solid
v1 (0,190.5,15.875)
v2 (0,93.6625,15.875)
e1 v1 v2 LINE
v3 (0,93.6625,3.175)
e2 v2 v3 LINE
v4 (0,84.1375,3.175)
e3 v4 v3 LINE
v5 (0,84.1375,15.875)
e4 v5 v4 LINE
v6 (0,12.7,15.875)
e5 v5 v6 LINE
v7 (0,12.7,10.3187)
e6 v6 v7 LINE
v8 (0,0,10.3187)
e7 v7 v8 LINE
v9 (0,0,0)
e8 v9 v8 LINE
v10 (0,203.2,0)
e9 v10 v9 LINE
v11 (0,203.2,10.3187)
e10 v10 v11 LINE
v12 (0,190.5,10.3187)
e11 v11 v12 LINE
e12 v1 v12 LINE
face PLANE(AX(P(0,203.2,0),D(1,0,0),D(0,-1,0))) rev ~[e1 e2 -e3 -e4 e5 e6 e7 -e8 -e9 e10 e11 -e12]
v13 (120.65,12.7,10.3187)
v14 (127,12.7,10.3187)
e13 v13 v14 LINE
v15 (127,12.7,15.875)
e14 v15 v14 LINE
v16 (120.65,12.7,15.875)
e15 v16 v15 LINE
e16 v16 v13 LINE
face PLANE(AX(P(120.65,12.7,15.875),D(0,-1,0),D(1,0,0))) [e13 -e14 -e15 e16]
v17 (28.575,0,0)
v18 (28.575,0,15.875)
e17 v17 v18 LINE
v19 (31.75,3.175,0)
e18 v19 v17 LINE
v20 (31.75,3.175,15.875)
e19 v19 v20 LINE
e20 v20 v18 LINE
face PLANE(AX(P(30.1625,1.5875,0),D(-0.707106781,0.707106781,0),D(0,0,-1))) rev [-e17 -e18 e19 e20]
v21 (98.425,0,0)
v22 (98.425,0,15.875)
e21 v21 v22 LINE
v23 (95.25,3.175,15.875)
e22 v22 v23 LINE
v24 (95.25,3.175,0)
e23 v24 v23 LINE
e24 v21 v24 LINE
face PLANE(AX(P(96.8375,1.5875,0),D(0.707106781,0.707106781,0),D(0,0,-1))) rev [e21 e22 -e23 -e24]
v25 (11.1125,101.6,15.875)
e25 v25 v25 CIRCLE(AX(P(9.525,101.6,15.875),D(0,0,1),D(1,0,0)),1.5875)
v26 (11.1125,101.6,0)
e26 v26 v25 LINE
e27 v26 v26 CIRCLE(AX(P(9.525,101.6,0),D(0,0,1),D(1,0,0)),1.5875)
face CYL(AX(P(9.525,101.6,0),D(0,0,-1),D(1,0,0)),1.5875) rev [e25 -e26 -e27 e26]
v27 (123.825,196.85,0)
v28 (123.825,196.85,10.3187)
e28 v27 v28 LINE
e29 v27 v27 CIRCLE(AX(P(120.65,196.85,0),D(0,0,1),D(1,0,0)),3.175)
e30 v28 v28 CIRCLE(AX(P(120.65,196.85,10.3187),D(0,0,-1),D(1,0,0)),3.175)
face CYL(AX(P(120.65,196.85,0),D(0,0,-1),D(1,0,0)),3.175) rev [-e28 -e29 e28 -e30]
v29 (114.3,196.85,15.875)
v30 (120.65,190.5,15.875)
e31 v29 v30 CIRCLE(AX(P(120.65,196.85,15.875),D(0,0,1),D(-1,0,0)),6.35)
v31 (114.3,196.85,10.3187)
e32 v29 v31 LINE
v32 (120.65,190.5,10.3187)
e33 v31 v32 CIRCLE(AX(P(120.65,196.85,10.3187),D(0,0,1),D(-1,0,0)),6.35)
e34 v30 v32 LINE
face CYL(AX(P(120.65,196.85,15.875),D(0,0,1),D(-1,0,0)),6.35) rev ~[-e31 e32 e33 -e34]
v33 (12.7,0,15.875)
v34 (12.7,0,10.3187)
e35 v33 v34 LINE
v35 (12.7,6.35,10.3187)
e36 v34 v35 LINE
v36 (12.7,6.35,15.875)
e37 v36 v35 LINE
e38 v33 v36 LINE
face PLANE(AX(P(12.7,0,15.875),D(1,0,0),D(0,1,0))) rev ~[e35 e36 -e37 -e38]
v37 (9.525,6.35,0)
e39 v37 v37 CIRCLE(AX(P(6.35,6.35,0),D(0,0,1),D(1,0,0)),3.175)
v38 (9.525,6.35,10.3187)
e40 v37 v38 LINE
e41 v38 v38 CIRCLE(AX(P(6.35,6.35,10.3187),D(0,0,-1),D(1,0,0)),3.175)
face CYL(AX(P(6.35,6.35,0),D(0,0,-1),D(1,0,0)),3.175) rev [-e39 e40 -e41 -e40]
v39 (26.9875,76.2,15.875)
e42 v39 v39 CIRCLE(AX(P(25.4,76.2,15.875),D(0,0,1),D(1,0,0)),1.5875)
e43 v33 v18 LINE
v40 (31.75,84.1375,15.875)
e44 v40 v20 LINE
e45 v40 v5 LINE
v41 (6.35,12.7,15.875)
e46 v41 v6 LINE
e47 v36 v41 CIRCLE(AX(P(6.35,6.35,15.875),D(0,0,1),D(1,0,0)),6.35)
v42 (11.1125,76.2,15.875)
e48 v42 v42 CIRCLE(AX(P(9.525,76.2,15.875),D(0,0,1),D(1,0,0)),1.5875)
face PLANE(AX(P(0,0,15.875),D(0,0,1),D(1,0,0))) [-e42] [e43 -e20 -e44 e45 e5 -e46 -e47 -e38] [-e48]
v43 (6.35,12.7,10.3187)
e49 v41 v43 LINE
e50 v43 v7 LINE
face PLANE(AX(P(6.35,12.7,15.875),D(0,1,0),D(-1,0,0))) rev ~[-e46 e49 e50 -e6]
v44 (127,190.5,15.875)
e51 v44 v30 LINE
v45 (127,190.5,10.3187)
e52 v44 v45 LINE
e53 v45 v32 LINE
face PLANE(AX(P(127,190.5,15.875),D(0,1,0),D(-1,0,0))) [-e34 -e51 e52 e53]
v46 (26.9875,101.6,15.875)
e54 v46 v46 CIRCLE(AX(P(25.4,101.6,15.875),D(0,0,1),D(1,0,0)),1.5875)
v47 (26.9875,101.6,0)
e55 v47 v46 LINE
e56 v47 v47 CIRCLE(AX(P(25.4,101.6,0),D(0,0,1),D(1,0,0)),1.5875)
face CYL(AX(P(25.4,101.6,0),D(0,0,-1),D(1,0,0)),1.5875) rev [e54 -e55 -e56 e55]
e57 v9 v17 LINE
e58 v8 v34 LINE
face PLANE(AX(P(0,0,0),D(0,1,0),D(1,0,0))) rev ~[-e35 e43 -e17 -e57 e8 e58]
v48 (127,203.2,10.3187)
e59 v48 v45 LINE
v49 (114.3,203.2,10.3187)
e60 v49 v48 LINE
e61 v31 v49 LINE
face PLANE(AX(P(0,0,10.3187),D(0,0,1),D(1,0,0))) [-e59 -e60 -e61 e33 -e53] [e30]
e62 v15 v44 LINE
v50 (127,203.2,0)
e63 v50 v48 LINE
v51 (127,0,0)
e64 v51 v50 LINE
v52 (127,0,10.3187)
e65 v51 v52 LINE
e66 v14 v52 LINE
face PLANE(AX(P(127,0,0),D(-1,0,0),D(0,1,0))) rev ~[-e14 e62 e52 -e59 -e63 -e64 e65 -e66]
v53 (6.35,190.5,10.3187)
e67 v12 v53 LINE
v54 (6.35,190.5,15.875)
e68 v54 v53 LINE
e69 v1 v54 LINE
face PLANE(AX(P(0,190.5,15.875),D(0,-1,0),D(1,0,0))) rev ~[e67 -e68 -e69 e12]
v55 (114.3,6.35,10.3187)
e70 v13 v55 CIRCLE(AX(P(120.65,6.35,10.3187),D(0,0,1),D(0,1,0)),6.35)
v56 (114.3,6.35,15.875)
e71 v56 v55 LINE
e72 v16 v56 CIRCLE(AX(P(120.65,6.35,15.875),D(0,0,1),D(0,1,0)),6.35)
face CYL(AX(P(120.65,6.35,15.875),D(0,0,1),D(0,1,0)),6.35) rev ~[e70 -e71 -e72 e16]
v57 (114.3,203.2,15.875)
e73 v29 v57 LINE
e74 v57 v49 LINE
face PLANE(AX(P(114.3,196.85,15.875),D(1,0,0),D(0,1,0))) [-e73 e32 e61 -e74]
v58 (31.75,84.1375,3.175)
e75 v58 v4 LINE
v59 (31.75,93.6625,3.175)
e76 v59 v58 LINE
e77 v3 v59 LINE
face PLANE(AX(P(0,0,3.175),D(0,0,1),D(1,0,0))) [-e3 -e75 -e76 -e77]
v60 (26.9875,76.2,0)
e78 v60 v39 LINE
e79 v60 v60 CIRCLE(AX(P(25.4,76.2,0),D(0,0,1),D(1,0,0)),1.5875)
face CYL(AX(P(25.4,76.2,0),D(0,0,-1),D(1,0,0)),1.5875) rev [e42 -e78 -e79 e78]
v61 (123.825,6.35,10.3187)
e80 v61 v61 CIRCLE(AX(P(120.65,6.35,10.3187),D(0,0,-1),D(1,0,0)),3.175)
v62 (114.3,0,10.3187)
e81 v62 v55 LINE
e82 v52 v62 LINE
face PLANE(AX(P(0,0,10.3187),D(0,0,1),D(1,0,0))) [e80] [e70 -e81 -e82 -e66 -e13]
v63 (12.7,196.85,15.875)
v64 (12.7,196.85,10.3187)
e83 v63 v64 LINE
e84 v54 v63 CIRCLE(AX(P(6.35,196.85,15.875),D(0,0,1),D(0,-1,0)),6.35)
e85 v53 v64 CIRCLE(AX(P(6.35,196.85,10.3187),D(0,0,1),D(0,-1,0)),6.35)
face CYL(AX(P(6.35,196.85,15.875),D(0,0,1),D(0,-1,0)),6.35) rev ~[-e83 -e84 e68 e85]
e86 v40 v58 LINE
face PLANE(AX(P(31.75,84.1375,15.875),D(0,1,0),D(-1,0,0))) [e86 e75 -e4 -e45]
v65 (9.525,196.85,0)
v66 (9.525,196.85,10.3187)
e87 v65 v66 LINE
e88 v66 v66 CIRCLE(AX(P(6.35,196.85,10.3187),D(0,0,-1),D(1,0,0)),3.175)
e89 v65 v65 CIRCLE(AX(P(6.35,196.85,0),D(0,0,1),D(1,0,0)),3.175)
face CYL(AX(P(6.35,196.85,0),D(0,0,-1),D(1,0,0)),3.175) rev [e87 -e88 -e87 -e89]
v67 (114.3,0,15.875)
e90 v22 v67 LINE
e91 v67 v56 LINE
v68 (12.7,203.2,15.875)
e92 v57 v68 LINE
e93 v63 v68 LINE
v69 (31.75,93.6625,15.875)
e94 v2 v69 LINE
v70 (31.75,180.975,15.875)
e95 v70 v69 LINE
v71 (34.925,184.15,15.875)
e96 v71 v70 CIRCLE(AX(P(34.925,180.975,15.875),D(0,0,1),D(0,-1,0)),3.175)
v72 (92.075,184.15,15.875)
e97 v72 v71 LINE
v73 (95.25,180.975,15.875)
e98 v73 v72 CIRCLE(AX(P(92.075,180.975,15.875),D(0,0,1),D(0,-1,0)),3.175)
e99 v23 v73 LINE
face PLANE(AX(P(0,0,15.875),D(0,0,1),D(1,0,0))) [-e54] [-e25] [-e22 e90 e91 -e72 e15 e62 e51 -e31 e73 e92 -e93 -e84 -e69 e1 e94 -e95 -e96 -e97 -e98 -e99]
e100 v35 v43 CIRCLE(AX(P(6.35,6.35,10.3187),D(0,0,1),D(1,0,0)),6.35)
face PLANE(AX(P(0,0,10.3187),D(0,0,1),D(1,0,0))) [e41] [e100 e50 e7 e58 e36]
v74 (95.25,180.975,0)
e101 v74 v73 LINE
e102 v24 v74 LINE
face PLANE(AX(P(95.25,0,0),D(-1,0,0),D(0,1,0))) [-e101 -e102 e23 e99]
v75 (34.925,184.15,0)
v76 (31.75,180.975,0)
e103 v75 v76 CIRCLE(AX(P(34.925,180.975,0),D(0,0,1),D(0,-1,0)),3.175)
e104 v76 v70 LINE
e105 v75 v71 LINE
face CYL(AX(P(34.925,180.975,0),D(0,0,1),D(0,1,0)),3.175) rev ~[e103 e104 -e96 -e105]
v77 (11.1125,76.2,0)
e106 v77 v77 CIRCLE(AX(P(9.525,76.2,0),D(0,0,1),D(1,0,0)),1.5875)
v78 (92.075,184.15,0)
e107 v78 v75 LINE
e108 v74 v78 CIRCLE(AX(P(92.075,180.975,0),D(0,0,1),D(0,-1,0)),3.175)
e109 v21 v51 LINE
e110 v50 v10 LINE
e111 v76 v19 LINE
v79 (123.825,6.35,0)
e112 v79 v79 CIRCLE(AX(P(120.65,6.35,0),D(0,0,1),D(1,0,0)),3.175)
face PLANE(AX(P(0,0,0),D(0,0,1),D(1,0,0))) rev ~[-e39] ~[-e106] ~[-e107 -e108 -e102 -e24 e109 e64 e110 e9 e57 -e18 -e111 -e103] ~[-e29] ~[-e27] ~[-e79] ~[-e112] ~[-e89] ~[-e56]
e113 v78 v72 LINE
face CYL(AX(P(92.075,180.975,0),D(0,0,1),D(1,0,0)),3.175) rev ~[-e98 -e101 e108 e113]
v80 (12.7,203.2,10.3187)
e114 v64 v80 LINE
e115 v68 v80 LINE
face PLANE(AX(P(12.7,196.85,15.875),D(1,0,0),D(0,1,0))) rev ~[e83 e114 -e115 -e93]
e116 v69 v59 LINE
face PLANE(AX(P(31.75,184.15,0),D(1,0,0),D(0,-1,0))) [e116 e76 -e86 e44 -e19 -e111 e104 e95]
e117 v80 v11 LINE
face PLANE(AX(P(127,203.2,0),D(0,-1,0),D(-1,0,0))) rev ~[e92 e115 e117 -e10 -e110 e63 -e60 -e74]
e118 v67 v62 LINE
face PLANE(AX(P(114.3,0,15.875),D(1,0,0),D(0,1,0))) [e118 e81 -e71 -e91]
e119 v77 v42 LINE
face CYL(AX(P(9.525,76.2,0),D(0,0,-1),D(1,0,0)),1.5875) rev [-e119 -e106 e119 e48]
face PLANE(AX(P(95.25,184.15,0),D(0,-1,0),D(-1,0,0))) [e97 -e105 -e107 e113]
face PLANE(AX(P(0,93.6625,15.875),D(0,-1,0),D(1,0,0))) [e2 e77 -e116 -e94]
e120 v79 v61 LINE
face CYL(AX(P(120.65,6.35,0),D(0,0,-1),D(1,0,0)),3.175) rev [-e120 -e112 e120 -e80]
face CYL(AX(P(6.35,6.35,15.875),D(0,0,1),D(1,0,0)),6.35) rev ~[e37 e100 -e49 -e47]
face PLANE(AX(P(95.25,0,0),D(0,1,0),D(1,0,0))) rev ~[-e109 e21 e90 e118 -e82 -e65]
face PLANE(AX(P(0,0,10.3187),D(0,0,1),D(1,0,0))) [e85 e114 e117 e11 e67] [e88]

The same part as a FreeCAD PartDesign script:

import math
import FreeCAD as App
import Part
import Sketcher
from FreeCAD import Vector
Q = App.Units.Quantity


def edges_at(feature, points):
    """Names of the edges that pass closest to the given points."""
    edges = feature.Shape.Edges
    near = lambda p: min(range(len(edges)), key=lambda i: edges[i].distToShape(Part.Vertex(*p))[0])
    return sorted({f"Edge{near(p) + 1}" for p in points})

doc = App.newDocument("Part")
body = doc.addObject("PartDesign::Body", "Body")

# Sketch on XY plane
sketch1 = body.newObject("Sketcher::SketchObject", "Sketch")
sketch1.AttachmentSupport = (doc.getObject("XY_Plane"), [""])
sketch1.MapMode = "FlatFace"
sketch1.addGeometry(Part.LineSegment(Vector(95.25, 0, 0), Vector(127, 0, 0)), False)
sketch1.addGeometry(Part.LineSegment(Vector(127, 0, 0), Vector(127, 203.2, 0)), False)
sketch1.addGeometry(Part.LineSegment(Vector(127, 203.2, 0), Vector(0, 203.2, 0)), False)
sketch1.addGeometry(Part.LineSegment(Vector(0, 203.2, 0), Vector(0, 0, 0)), False)
sketch1.addGeometry(Part.LineSegment(Vector(0, 0, 0), Vector(31.75, 0, 0)), False)
sketch1.addGeometry(Part.LineSegment(Vector(31.75, 0, 0), Vector(31.75, 184.15, 0)), False)
sketch1.addGeometry(Part.LineSegment(Vector(31.75, 184.15, 0), Vector(95.25, 184.15, 0)), False)
sketch1.addGeometry(Part.LineSegment(Vector(95.25, 184.15, 0), Vector(95.25, 0, 0)), False)
sketch1.addGeometry(Part.Circle(Vector(6.35, 6.35, 0), Vector(0, 0, 1), 3.175), False)
sketch1.addGeometry(Part.Circle(Vector(9.525, 76.2, 0), Vector(0, 0, 1), 1.5875), False)
sketch1.addGeometry(Part.Circle(Vector(9.525, 101.6, 0), Vector(0, 0, 1), 1.5875), False)
sketch1.addGeometry(Part.Circle(Vector(25.4, 76.2, 0), Vector(0, 0, 1), 1.5875), False)
sketch1.addGeometry(Part.Circle(Vector(25.4, 101.6, 0), Vector(0, 0, 1), 1.5875), False)
sketch1.addGeometry(Part.Circle(Vector(120.65, 6.35, 0), Vector(0, 0, 1), 3.175), False)
sketch1.addGeometry(Part.Circle(Vector(6.35, 196.85, 0), Vector(0, 0, 1), 3.175), False)
sketch1.addGeometry(Part.Circle(Vector(120.65, 196.85, 0), Vector(0, 0, 1), 3.175), False)
sketch1.addConstraint(Sketcher.Constraint("Coincident", 0, 2, 1, 1))
sketch1.addConstraint(Sketcher.Constraint("Coincident", 1, 2, 2, 1))
sketch1.addConstraint(Sketcher.Constraint("Coincident", 2, 2, 3, 1))
sketch1.addConstraint(Sketcher.Constraint("Coincident", 3, 2, 4, 1))
sketch1.addConstraint(Sketcher.Constraint("Coincident", 4, 2, 5, 1))
sketch1.addConstraint(Sketcher.Constraint("Coincident", 5, 2, 6, 1))
sketch1.addConstraint(Sketcher.Constraint("Coincident", 6, 2, 7, 1))
sketch1.addConstraint(Sketcher.Constraint("Coincident", 7, 2, 0, 1))
sketch1.addConstraint(Sketcher.Constraint("Horizontal", 0))
sketch1.addConstraint(Sketcher.Constraint("Vertical", 1))
sketch1.addConstraint(Sketcher.Constraint("Horizontal", 2))
sketch1.addConstraint(Sketcher.Constraint("Vertical", 3))
sketch1.addConstraint(Sketcher.Constraint("Horizontal", 4))
sketch1.addConstraint(Sketcher.Constraint("Vertical", 5))
sketch1.addConstraint(Sketcher.Constraint("Horizontal", 6))
sketch1.addConstraint(Sketcher.Constraint("Vertical", 7))
sketch1.addConstraint(Sketcher.Constraint("Coincident", 3, 2, -1, 1))
sketch1.addConstraint(Sketcher.Constraint("Equal", 9, 10))
sketch1.addConstraint(Sketcher.Constraint("Equal", 10, 11))
sketch1.addConstraint(Sketcher.Constraint("Equal", 11, 12))
sketch1.addConstraint(Sketcher.Constraint("Equal", 8, 13))
sketch1.addConstraint(Sketcher.Constraint("Equal", 13, 14))
sketch1.addConstraint(Sketcher.Constraint("Equal", 14, 15))
sketch1.addConstraint(Sketcher.Constraint("PointOnObject", 0, 2, -1))
sketch1.addConstraint(Sketcher.Constraint("Horizontal", 9, 3, 11, 3))
sketch1.addConstraint(Sketcher.Constraint("Horizontal", 10, 3, 12, 3))
sketch1.addConstraint(Sketcher.Constraint("Horizontal", 8, 3, 13, 3))
sketch1.addConstraint(Sketcher.Constraint("Horizontal", 14, 3, 15, 3))
sketch1.addConstraint(Sketcher.Constraint("Vertical", 9, 3, 10, 3))
sketch1.addConstraint(Sketcher.Constraint("Vertical", 11, 3, 12, 3))
sketch1.addConstraint(Sketcher.Constraint("Vertical", 8, 3, 14, 3))
sketch1.addConstraint(Sketcher.Constraint("Vertical", 13, 3, 15, 3))
sketch1.addConstraint(Sketcher.Constraint("Equal", 0, 4))
sketch1.addConstraint(Sketcher.Constraint("Diameter", 8, Q("0.25 in")))
sketch1.addConstraint(Sketcher.Constraint("DistanceX", 2, 2, 2, 1, Q("5 in")))
sketch1.addConstraint(Sketcher.Constraint("DistanceY", 1, 1, 1, 2, Q("8 in")))
sketch1.addConstraint(Sketcher.Constraint("Diameter", 9, Q("0.125 in")))
sketch1.addConstraint(Sketcher.Constraint("DistanceX", 6, 1, 6, 2, Q("2.5 in")))
sketch1.addConstraint(Sketcher.Constraint("DistanceY", -1, 1, 9, 3, Q("3 in")))
sketch1.addConstraint(Sketcher.Constraint("DistanceY", -1, 1, 10, 3, Q("4 in")))
sketch1.addConstraint(Sketcher.Constraint("DistanceX", -1, 1, 11, 3, Q("1 in")))
sketch1.addConstraint(Sketcher.Constraint("DistanceX", 8, 3, 4, 2, Q("1 in")))
sketch1.addConstraint(Sketcher.Constraint("DistanceX", 6, 2, 15, 3, Q("1 in")))
sketch1.addConstraint(Sketcher.Constraint("DistanceY", 5, 1, 5, 2, Q("7.25 in")))
sketch1.addConstraint(Sketcher.Constraint("DistanceY", 8, 3, 14, 3, Q("7.5 in")))
sketch1.addConstraint(Sketcher.Constraint("DistanceY", 5, 2, 14, 3, Q("0.5 in")))
sketch1.addConstraint(Sketcher.Constraint("DistanceX", -1, 1, 9, 3, Q("0.375 in")))
pad1 = body.newObject("PartDesign::Pad", "Pad")
pad1.Profile = sketch1
pad1.Length = Q("0.625 in")
doc.recompute()

chamfer = body.newObject("PartDesign::Chamfer", "Chamfer")
chamfer.Base = (pad1, edges_at(pad1, [(31.75, 0, 7.938), (95.25, 0, 7.938)]))
chamfer.Size = Q("0.125 in")
doc.recompute()

fillet = body.newObject("PartDesign::Fillet", "Fillet")
fillet.Base = (chamfer, edges_at(chamfer, [(31.75, 184.15, 7.938), (95.25, 184.15, 7.938)]))
fillet.Radius = Q("0.125 in")

# Sketch on XY plane
sketch2 = body.newObject("Sketcher::SketchObject", "Sketch001")
sketch2.AttachmentSupport = (doc.getObject("XY_Plane"), [""])
sketch2.MapMode = "FlatFace"
sketch2.AttachmentOffset = App.Placement(Vector(0, 0, 0.625 * 25.4), App.Rotation())
sketch2.addGeometry(Part.LineSegment(Vector(0, 190.5, 0), Vector(6.35, 190.5, 0)), False)
sketch2.addGeometry(Part.ArcOfCircle(Part.Circle(Vector(6.35, 196.85, 0), Vector(0, 0, 1), 6.35), math.radians(-90), math.radians(0)), False)
sketch2.addGeometry(Part.LineSegment(Vector(12.7, 196.85, 0), Vector(12.7, 203.2, 0)), False)
sketch2.addGeometry(Part.LineSegment(Vector(12.7, 203.2, 0), Vector(0, 203.2, 0)), False)
sketch2.addGeometry(Part.LineSegment(Vector(0, 203.2, 0), Vector(0, 190.5, 0)), False)
sketch2.addGeometry(Part.LineSegment(Vector(114.3, 203.2, 0), Vector(114.3, 196.85, 0)), False)
sketch2.addGeometry(Part.ArcOfCircle(Part.Circle(Vector(120.65, 196.85, 0), Vector(0, 0, 1), 6.35), math.radians(180), math.radians(270)), False)
sketch2.addGeometry(Part.LineSegment(Vector(120.65, 190.5, 0), Vector(127, 190.5, 0)), False)
sketch2.addGeometry(Part.LineSegment(Vector(127, 190.5, 0), Vector(127, 203.2, 0)), False)
sketch2.addGeometry(Part.LineSegment(Vector(127, 203.2, 0), Vector(114.3, 203.2, 0)), False)
sketch2.addGeometry(Part.LineSegment(Vector(12.7, 0, 0), Vector(12.7, 6.35, 0)), False)
sketch2.addGeometry(Part.ArcOfCircle(Part.Circle(Vector(6.35, 6.35, 0), Vector(0, 0, 1), 6.35), math.radians(0), math.radians(90)), False)
sketch2.addGeometry(Part.LineSegment(Vector(6.35, 12.7, 0), Vector(0, 12.7, 0)), False)
sketch2.addGeometry(Part.LineSegment(Vector(0, 12.7, 0), Vector(0, 0, 0)), False)
sketch2.addGeometry(Part.LineSegment(Vector(0, 0, 0), Vector(12.7, 0, 0)), False)
sketch2.addGeometry(Part.LineSegment(Vector(127, 12.7, 0), Vector(120.65, 12.7, 0)), False)
sketch2.addGeometry(Part.ArcOfCircle(Part.Circle(Vector(120.65, 6.35, 0), Vector(0, 0, 1), 6.35), math.radians(90), math.radians(180)), False)
sketch2.addGeometry(Part.LineSegment(Vector(114.3, 6.35, 0), Vector(114.3, 0, 0)), False)
sketch2.addGeometry(Part.LineSegment(Vector(114.3, 0, 0), Vector(127, 0, 0)), False)
sketch2.addGeometry(Part.LineSegment(Vector(127, 0, 0), Vector(127, 12.7, 0)), False)
sketch2.addConstraint(Sketcher.Constraint("Tangent", 0, 2, 1, 1))
sketch2.addConstraint(Sketcher.Constraint("Tangent", 1, 2, 2, 1))
sketch2.addConstraint(Sketcher.Constraint("Coincident", 2, 2, 3, 1))
sketch2.addConstraint(Sketcher.Constraint("Coincident", 3, 2, 4, 1))
sketch2.addConstraint(Sketcher.Constraint("Coincident", 4, 2, 0, 1))
sketch2.addConstraint(Sketcher.Constraint("Tangent", 5, 2, 6, 1))
sketch2.addConstraint(Sketcher.Constraint("Tangent", 6, 2, 7, 1))
sketch2.addConstraint(Sketcher.Constraint("Coincident", 7, 2, 8, 1))
sketch2.addConstraint(Sketcher.Constraint("Coincident", 8, 2, 9, 1))
sketch2.addConstraint(Sketcher.Constraint("Coincident", 9, 2, 5, 1))
sketch2.addConstraint(Sketcher.Constraint("Tangent", 10, 2, 11, 1))
sketch2.addConstraint(Sketcher.Constraint("Tangent", 11, 2, 12, 1))
sketch2.addConstraint(Sketcher.Constraint("Coincident", 12, 2, 13, 1))
sketch2.addConstraint(Sketcher.Constraint("Coincident", 13, 2, 14, 1))
sketch2.addConstraint(Sketcher.Constraint("Coincident", 14, 2, 10, 1))
sketch2.addConstraint(Sketcher.Constraint("Tangent", 15, 2, 16, 1))
sketch2.addConstraint(Sketcher.Constraint("Tangent", 16, 2, 17, 1))
sketch2.addConstraint(Sketcher.Constraint("Coincident", 17, 2, 18, 1))
sketch2.addConstraint(Sketcher.Constraint("Coincident", 18, 2, 19, 1))
sketch2.addConstraint(Sketcher.Constraint("Coincident", 19, 2, 15, 1))
sketch2.addConstraint(Sketcher.Constraint("Horizontal", 0))
sketch2.addConstraint(Sketcher.Constraint("Vertical", 2))
sketch2.addConstraint(Sketcher.Constraint("Horizontal", 3))
sketch2.addConstraint(Sketcher.Constraint("Vertical", 4))
sketch2.addConstraint(Sketcher.Constraint("Vertical", 5))
sketch2.addConstraint(Sketcher.Constraint("Horizontal", 7))
sketch2.addConstraint(Sketcher.Constraint("Vertical", 8))
sketch2.addConstraint(Sketcher.Constraint("Horizontal", 9))
sketch2.addConstraint(Sketcher.Constraint("Vertical", 10))
sketch2.addConstraint(Sketcher.Constraint("Horizontal", 12))
sketch2.addConstraint(Sketcher.Constraint("Vertical", 13))
sketch2.addConstraint(Sketcher.Constraint("Horizontal", 14))
sketch2.addConstraint(Sketcher.Constraint("Horizontal", 15))
sketch2.addConstraint(Sketcher.Constraint("Vertical", 17))
sketch2.addConstraint(Sketcher.Constraint("Horizontal", 18))
sketch2.addConstraint(Sketcher.Constraint("Vertical", 19))
sketch2.addConstraint(Sketcher.Constraint("Coincident", 13, 2, -1, 1))
sketch2.addConstraint(Sketcher.Constraint("Equal", 1, 6))
sketch2.addConstraint(Sketcher.Constraint("Equal", 6, 11))
sketch2.addConstraint(Sketcher.Constraint("Equal", 11, 16))
sketch2.addConstraint(Sketcher.Constraint("PointOnObject", 3, 2, -2))
sketch2.addConstraint(Sketcher.Constraint("PointOnObject", 17, 2, -1))
sketch2.addConstraint(Sketcher.Constraint("Horizontal", 1, 3, 6, 3))
sketch2.addConstraint(Sketcher.Constraint("Horizontal", 11, 3, 16, 3))
sketch2.addConstraint(Sketcher.Constraint("Horizontal", 3, 2, 8, 2))
sketch2.addConstraint(Sketcher.Constraint("Vertical", 1, 3, 11, 3))
sketch2.addConstraint(Sketcher.Constraint("Vertical", 6, 3, 16, 3))
sketch2.addConstraint(Sketcher.Constraint("Vertical", 8, 2, 18, 2))
sketch2.addConstraint(Sketcher.Constraint("Equal", 0, 7))
sketch2.addConstraint(Sketcher.Constraint("Equal", 15, 2))
sketch2.addConstraint(Sketcher.Constraint("Equal", 5, 10))
sketch2.addConstraint(Sketcher.Constraint("Radius", 1, Q("0.25 in")))
sketch2.addConstraint(Sketcher.Constraint("DistanceX", 3, 2, 3, 1, Q("0.5 in")))
sketch2.addConstraint(Sketcher.Constraint("DistanceY", -1, 1, 2, 2, Q("8 in")))
sketch2.addConstraint(Sketcher.Constraint("DistanceX", -1, 1, 7, 2, Q("5 in")))
pocket1 = body.newObject("PartDesign::Pocket", "Pocket")
pocket1.Profile = sketch2
pocket1.Length = Q("0.218752 in")

# Sketch on XY plane
sketch3 = body.newObject("Sketcher::SketchObject", "Sketch002")
sketch3.AttachmentSupport = (doc.getObject("XY_Plane"), [""])
sketch3.MapMode = "FlatFace"
sketch3.AttachmentOffset = App.Placement(Vector(0, 0, 0.625 * 25.4), App.Rotation())
sketch3.addGeometry(Part.LineSegment(Vector(31.75, 93.6625, 0), Vector(0, 93.6625, 0)), False)
sketch3.addGeometry(Part.LineSegment(Vector(0, 93.6625, 0), Vector(0, 84.1375, 0)), False)
sketch3.addGeometry(Part.LineSegment(Vector(0, 84.1375, 0), Vector(31.75, 84.1375, 0)), False)
sketch3.addGeometry(Part.LineSegment(Vector(31.75, 84.1375, 0), Vector(31.75, 93.6625, 0)), False)
sketch3.addConstraint(Sketcher.Constraint("Coincident", 0, 2, 1, 1))
sketch3.addConstraint(Sketcher.Constraint("Coincident", 1, 2, 2, 1))
sketch3.addConstraint(Sketcher.Constraint("Coincident", 2, 2, 3, 1))
sketch3.addConstraint(Sketcher.Constraint("Coincident", 3, 2, 0, 1))
sketch3.addConstraint(Sketcher.Constraint("Horizontal", 0))
sketch3.addConstraint(Sketcher.Constraint("Vertical", 1))
sketch3.addConstraint(Sketcher.Constraint("Horizontal", 2))
sketch3.addConstraint(Sketcher.Constraint("Vertical", 3))
sketch3.addConstraint(Sketcher.Constraint("PointOnObject", 0, 2, -2))
sketch3.addConstraint(Sketcher.Constraint("DistanceX", 0, 2, 0, 1, Q("1.25 in")))
sketch3.addConstraint(Sketcher.Constraint("DistanceY", 1, 2, 1, 1, Q("0.375 in")))
sketch3.addConstraint(Sketcher.Constraint("DistanceY", -1, 1, 0, 2, Q("3.6875 in")))
pocket2 = body.newObject("PartDesign::Pocket", "Pocket001")
pocket2.Profile = sketch3
pocket2.Length = Q("0.5 in")

doc.recompute()
